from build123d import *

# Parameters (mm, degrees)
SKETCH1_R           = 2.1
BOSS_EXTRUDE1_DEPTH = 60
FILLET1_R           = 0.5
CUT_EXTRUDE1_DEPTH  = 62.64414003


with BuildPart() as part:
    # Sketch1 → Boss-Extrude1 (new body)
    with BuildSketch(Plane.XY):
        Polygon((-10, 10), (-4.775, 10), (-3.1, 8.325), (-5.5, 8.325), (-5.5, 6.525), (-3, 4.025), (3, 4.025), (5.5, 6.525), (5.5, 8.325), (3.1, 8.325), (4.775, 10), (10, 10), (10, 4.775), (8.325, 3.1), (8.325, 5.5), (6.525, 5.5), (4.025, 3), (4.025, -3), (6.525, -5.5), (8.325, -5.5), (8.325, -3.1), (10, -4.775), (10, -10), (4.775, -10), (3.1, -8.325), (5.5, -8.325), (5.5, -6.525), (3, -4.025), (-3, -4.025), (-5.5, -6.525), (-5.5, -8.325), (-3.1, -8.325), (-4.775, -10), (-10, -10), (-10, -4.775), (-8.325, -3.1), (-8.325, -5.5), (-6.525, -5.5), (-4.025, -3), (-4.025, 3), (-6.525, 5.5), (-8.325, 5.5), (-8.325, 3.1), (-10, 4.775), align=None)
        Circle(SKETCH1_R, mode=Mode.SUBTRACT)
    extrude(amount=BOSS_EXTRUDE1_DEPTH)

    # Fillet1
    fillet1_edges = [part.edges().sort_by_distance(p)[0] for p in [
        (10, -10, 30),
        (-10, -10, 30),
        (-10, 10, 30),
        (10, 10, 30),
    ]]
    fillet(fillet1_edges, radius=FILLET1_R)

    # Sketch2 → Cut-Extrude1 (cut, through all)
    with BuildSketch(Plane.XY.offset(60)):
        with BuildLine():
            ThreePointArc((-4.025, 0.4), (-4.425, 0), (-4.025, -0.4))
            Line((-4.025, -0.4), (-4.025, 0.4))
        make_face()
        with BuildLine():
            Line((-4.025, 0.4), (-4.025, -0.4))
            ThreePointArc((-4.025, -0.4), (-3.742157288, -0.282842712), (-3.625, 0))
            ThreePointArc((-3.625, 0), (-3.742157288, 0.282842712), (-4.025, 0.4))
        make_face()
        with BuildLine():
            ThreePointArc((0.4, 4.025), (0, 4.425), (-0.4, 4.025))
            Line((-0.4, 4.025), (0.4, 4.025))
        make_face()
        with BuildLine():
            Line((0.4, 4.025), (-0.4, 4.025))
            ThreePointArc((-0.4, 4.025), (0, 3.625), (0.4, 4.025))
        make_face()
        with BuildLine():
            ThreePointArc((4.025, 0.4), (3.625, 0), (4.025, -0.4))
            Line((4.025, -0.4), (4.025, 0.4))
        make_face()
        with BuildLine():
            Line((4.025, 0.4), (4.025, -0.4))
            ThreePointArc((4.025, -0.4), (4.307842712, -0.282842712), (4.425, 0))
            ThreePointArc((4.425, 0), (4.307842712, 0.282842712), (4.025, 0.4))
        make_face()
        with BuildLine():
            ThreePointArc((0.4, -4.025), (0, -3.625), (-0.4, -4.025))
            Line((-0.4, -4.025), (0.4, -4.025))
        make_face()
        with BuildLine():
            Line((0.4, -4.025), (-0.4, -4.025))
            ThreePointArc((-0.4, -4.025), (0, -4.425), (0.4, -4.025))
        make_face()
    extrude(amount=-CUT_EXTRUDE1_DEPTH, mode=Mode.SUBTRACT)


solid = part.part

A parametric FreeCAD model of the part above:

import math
import FreeCAD as App
import Part
import Sketcher


def edges_at(feature, points):
    """Names of the edges that pass closest to the given points."""
    edges = feature.Shape.Edges
    near = lambda p: min(range(len(edges)), key=lambda i: edges[i].distToShape(Part.Vertex(*p))[0])
    return sorted({f"Edge{near(p) + 1}" for p in points})

doc = App.newDocument("Part")
body = doc.addObject("PartDesign::Body", "Body")

sketch1 = body.newObject("Sketcher::SketchObject", "Sketch")
sketch1.AttachmentSupport = (doc.getObject("XY_Plane"), [""])
sketch1.MapMode = "FlatFace"
sketch1.addGeometry(Part.LineSegment(App.Vector(-4.8, 10, 0), App.Vector(-10, 10, 0)), False)
sketch1.addGeometry(Part.LineSegment(App.Vector(-10, 10, 0), App.Vector(-10, 4.8, 0)), False)
sketch1.addGeometry(Part.LineSegment(App.Vector(-10, 4.8, 0), App.Vector(-8.3, 3.1, 0)), False)
sketch1.addGeometry(Part.LineSegment(App.Vector(-8.3, 3.1, 0), App.Vector(-8.3, 5.5, 0)), False)
sketch1.addGeometry(Part.LineSegment(App.Vector(-8.3, 5.5, 0), App.Vector(-6.5, 5.5, 0)), False)
sketch1.addGeometry(Part.LineSegment(App.Vector(-6.5, 5.5, 0), App.Vector(-4, 3, 0)), False)
sketch1.addGeometry(Part.LineSegment(App.Vector(-4, 3, 0), App.Vector(-4, -3, 0)), False)
sketch1.addGeometry(Part.LineSegment(App.Vector(-4, -3, 0), App.Vector(-6.5, -5.5, 0)), False)
sketch1.addGeometry(Part.LineSegment(App.Vector(-6.5, -5.5, 0), App.Vector(-8.3, -5.5, 0)), False)
sketch1.addGeometry(Part.LineSegment(App.Vector(-8.3, -5.5, 0), App.Vector(-8.3, -3.1, 0)), False)
sketch1.addGeometry(Part.LineSegment(App.Vector(-8.3, -3.1, 0), App.Vector(-10, -4.8, 0)), False)
sketch1.addGeometry(Part.LineSegment(App.Vector(-10, -4.8, 0), App.Vector(-10, -10, 0)), False)
sketch1.addGeometry(Part.LineSegment(App.Vector(-10, -10, 0), App.Vector(-4.8, -10, 0)), False)
sketch1.addGeometry(Part.LineSegment(App.Vector(-4.8, -10, 0), App.Vector(-3.1, -8.3, 0)), False)
sketch1.addGeometry(Part.LineSegment(App.Vector(-3.1, -8.3, 0), App.Vector(-5.5, -8.3, 0)), False)
sketch1.addGeometry(Part.LineSegment(App.Vector(-5.5, -8.3, 0), App.Vector(-5.5, -6.5, 0)), False)
sketch1.addGeometry(Part.LineSegment(App.Vector(-5.5, -6.5, 0), App.Vector(-3, -4, 0)), False)
sketch1.addGeometry(Part.LineSegment(App.Vector(-3, -4, 0), App.Vector(3, -4, 0)), False)
sketch1.addGeometry(Part.LineSegment(App.Vector(3, -4, 0), App.Vector(5.5, -6.5, 0)), False)
sketch1.addGeometry(Part.LineSegment(App.Vector(5.5, -6.5, 0), App.Vector(5.5, -8.3, 0)), False)
sketch1.addGeometry(Part.LineSegment(App.Vector(5.5, -8.3, 0), App.Vector(3.1, -8.3, 0)), False)
sketch1.addGeometry(Part.LineSegment(App.Vector(3.1, -8.3, 0), App.Vector(4.8, -10, 0)), False)
sketch1.addGeometry(Part.LineSegment(App.Vector(4.8, -10, 0), App.Vector(10, -10, 0)), False)
sketch1.addGeometry(Part.LineSegment(App.Vector(10, -10, 0), App.Vector(10, -4.8, 0)), False)
sketch1.addGeometry(Part.LineSegment(App.Vector(10, -4.8, 0), App.Vector(8.3, -3.1, 0)), False)
sketch1.addGeometry(Part.LineSegment(App.Vector(8.3, -3.1, 0), App.Vector(8.3, -5.5, 0)), False)
sketch1.addGeometry(Part.LineSegment(App.Vector(8.3, -5.5, 0), App.Vector(6.5, -5.5, 0)), False)
sketch1.addGeometry(Part.LineSegment(App.Vector(6.5, -5.5, 0), App.Vector(4, -3, 0)), False)
sketch1.addGeometry(Part.LineSegment(App.Vector(4, -3, 0), App.Vector(4, 3, 0)), False)
sketch1.addGeometry(Part.LineSegment(App.Vector(4, 3, 0), App.Vector(6.5, 5.5, 0)), False)
sketch1.addGeometry(Part.LineSegment(App.Vector(6.5, 5.5, 0), App.Vector(8.3, 5.5, 0)), False)
sketch1.addGeometry(Part.LineSegment(App.Vector(8.3, 5.5, 0), App.Vector(8.3, 3.1, 0)), False)
sketch1.addGeometry(Part.LineSegment(App.Vector(8.3, 3.1, 0), App.Vector(10, 4.8, 0)), False)
sketch1.addGeometry(Part.LineSegment(App.Vector(10, 4.8, 0), App.Vector(10, 10, 0)), False)
sketch1.addGeometry(Part.LineSegment(App.Vector(10, 10, 0), App.Vector(4.8, 10, 0)), False)
sketch1.addGeometry(Part.LineSegment(App.Vector(4.8, 10, 0), App.Vector(3.1, 8.3, 0)), False)
sketch1.addGeometry(Part.LineSegment(App.Vector(3.1, 8.3, 0), App.Vector(5.5, 8.3, 0)), False)
sketch1.addGeometry(Part.LineSegment(App.Vector(5.5, 8.3, 0), App.Vector(5.5, 6.5, 0)), False)
sketch1.addGeometry(Part.LineSegment(App.Vector(5.5, 6.5, 0), App.Vector(3, 4, 0)), False)
sketch1.addGeometry(Part.LineSegment(App.Vector(3, 4, 0), App.Vector(-3, 4, 0)), False)
sketch1.addGeometry(Part.LineSegment(App.Vector(-3, 4, 0), App.Vector(-5.5, 6.5, 0)), False)
sketch1.addGeometry(Part.LineSegment(App.Vector(-5.5, 6.5, 0), App.Vector(-5.5, 8.3, 0)), False)
sketch1.addGeometry(Part.LineSegment(App.Vector(-5.5, 8.3, 0), App.Vector(-3.1, 8.3, 0)), False)
sketch1.addGeometry(Part.LineSegment(App.Vector(-3.1, 8.3, 0), App.Vector(-4.8, 10, 0)), False)
sketch1.addGeometry(Part.Circle(App.Vector(0, 0, 0), App.Vector(0, 0, 1), 2.1), False)
sketch1.addConstraint(Sketcher.Constraint("Coincident", 0, 2, 1, 1))
sketch1.addConstraint(Sketcher.Constraint("Coincident", 1, 2, 2, 1))
sketch1.addConstraint(Sketcher.Constraint("Coincident", 2, 2, 3, 1))
sketch1.addConstraint(Sketcher.Constraint("Coincident", 3, 2, 4, 1))
sketch1.addConstraint(Sketcher.Constraint("Coincident", 4, 2, 5, 1))
sketch1.addConstraint(Sketcher.Constraint("Coincident", 5, 2, 6, 1))
sketch1.addConstraint(Sketcher.Constraint("Coincident", 6, 2, 7, 1))
sketch1.addConstraint(Sketcher.Constraint("Coincident", 7, 2, 8, 1))
sketch1.addConstraint(Sketcher.Constraint("Coincident", 8, 2, 9, 1))
sketch1.addConstraint(Sketcher.Constraint("Coincident", 9, 2, 10, 1))
sketch1.addConstraint(Sketcher.Constraint("Coincident", 10, 2, 11, 1))
sketch1.addConstraint(Sketcher.Constraint("Coincident", 11, 2, 12, 1))
sketch1.addConstraint(Sketcher.Constraint("Coincident", 12, 2, 13, 1))
sketch1.addConstraint(Sketcher.Constraint("Coincident", 13, 2, 14, 1))
sketch1.addConstraint(Sketcher.Constraint("Coincident", 14, 2, 15, 1))
sketch1.addConstraint(Sketcher.Constraint("Coincident", 15, 2, 16, 1))
sketch1.addConstraint(Sketcher.Constraint("Coincident", 16, 2, 17, 1))
sketch1.addConstraint(Sketcher.Constraint("Coincident", 17, 2, 18, 1))
sketch1.addConstraint(Sketcher.Constraint("Coincident", 18, 2, 19, 1))
sketch1.addConstraint(Sketcher.Constraint("Coincident", 19, 2, 20, 1))
sketch1.addConstraint(Sketcher.Constraint("Coincident", 20, 2, 21, 1))
sketch1.addConstraint(Sketcher.Constraint("Coincident", 21, 2, 22, 1))
sketch1.addConstraint(Sketcher.Constraint("Coincident", 22, 2, 23, 1))
sketch1.addConstraint(Sketcher.Constraint("Coincident", 23, 2, 24, 1))
sketch1.addConstraint(Sketcher.Constraint("Coincident", 24, 2, 25, 1))
sketch1.addConstraint(Sketcher.Constraint("Coincident", 25, 2, 26, 1))
sketch1.addConstraint(Sketcher.Constraint("Coincident", 26, 2, 27, 1))
sketch1.addConstraint(Sketcher.Constraint("Coincident", 27, 2, 28, 1))
sketch1.addConstraint(Sketcher.Constraint("Coincident", 28, 2, 29, 1))
sketch1.addConstraint(Sketcher.Constraint("Coincident", 29, 2, 30, 1))
sketch1.addConstraint(Sketcher.Constraint("Coincident", 30, 2, 31, 1))
sketch1.addConstraint(Sketcher.Constraint("Coincident", 31, 2, 32, 1))
sketch1.addConstraint(Sketcher.Constraint("Coincident", 32, 2, 33, 1))
sketch1.addConstraint(Sketcher.Constraint("Coincident", 33, 2, 34, 1))
sketch1.addConstraint(Sketcher.Constraint("Coincident", 34, 2, 35, 1))
sketch1.addConstraint(Sketcher.Constraint("Coincident", 35, 2, 36, 1))
sketch1.addConstraint(Sketcher.Constraint("Coincident", 36, 2, 37, 1))
sketch1.addConstraint(Sketcher.Constraint("Coincident", 37, 2, 38, 1))
sketch1.addConstraint(Sketcher.Constraint("Coincident", 38, 2, 39, 1))
sketch1.addConstraint(Sketcher.Constraint("Coincident", 39, 2, 40, 1))
sketch1.addConstraint(Sketcher.Constraint("Coincident", 40, 2, 41, 1))
sketch1.addConstraint(Sketcher.Constraint("Coincident", 41, 2, 42, 1))
sketch1.addConstraint(Sketcher.Constraint("Coincident", 42, 2, 43, 1))
sketch1.addConstraint(Sketcher.Constraint("Coincident", 43, 2, 0, 1))
sketch1.addConstraint(Sketcher.Constraint("Horizontal", 0))
sketch1.addConstraint(Sketcher.Constraint("Vertical", 1))
sketch1.addConstraint(Sketcher.Constraint("Vertical", 3))
sketch1.addConstraint(Sketcher.Constraint("Horizontal", 4))
sketch1.addConstraint(Sketcher.Constraint("Vertical", 6))
sketch1.addConstraint(Sketcher.Constraint("Horizontal", 8))
sketch1.addConstraint(Sketcher.Constraint("Vertical", 9))
sketch1.addConstraint(Sketcher.Constraint("Vertical", 11))
sketch1.addConstraint(Sketcher.Constraint("Horizontal", 12))
sketch1.addConstraint(Sketcher.Constraint("Horizontal", 14))
sketch1.addConstraint(Sketcher.Constraint("Vertical", 15))
sketch1.addConstraint(Sketcher.Constraint("Horizontal", 17))
sketch1.addConstraint(Sketcher.Constraint("Vertical", 19))
sketch1.addConstraint(Sketcher.Constraint("Horizontal", 20))
sketch1.addConstraint(Sketcher.Constraint("Horizontal", 22))
sketch1.addConstraint(Sketcher.Constraint("Vertical", 23))
sketch1.addConstraint(Sketcher.Constraint("Vertical", 25))
sketch1.addConstraint(Sketcher.Constraint("Horizontal", 26))
sketch1.addConstraint(Sketcher.Constraint("Vertical", 28))
sketch1.addConstraint(Sketcher.Constraint("Horizontal", 30))
sketch1.addConstraint(Sketcher.Constraint("Vertical", 31))
sketch1.addConstraint(Sketcher.Constraint("Vertical", 33))
sketch1.addConstraint(Sketcher.Constraint("Horizontal", 34))
sketch1.addConstraint(Sketcher.Constraint("Horizontal", 36))
sketch1.addConstraint(Sketcher.Constraint("Vertical", 37))
sketch1.addConstraint(Sketcher.Constraint("Horizontal", 39))
sketch1.addConstraint(Sketcher.Constraint("Vertical", 41))
sketch1.addConstraint(Sketcher.Constraint("Horizontal", 42))
sketch1.addConstraint(Sketcher.Constraint("Coincident", 44, 3, -1, 1))
sketch1.addConstraint(Sketcher.Constraint("Symmetric", 0, 2, 22, 2, -1, 1))
sketch1.addConstraint(Sketcher.Constraint("Symmetric", 2, 2, 24, 2, -1, 1))
sketch1.addConstraint(Sketcher.Constraint("Symmetric", 4, 2, 26, 2, -1, 1))
sketch1.addConstraint(Sketcher.Constraint("Symmetric", 5, 2, 27, 2, -1, 1))
sketch1.addConstraint(Sketcher.Constraint("Symmetric", 7, 2, 29, 2, -1, 1))
sketch1.addConstraint(Sketcher.Constraint("Symmetric", 9, 2, 31, 2, -1, 1))
sketch1.addConstraint(Sketcher.Constraint("Symmetric", 10, 2, 32, 2, -1, 1))
sketch1.addConstraint(Sketcher.Constraint("Symmetric", 12, 2, 34, 2, -1, 1))
sketch1.addConstraint(Sketcher.Constraint("Symmetric", 13, 2, 35, 2, -1, 1))
sketch1.addConstraint(Sketcher.Constraint("Symmetric", 15, 2, 37, 2, -1, 1))
sketch1.addConstraint(Sketcher.Constraint("Symmetric", 16, 2, 38, 2, -1, 1))
sketch1.addConstraint(Sketcher.Constraint("Symmetric", 18, 2, 40, 2, -1, 1))
sketch1.addConstraint(Sketcher.Constraint("Symmetric", 20, 2, 42, 2, -1, 1))
sketch1.addConstraint(Sketcher.Constraint("Symmetric", 15, 2, 18, 2, -2))
sketch1.addConstraint(Sketcher.Constraint("Symmetric", 13, 2, 20, 2, -2))
sketch1.addConstraint(Sketcher.Constraint("Symmetric", 12, 2, 21, 2, -2))
sketch1.addConstraint(Sketcher.Constraint("Symmetric", 10, 2, 23, 2, -2))
sketch1.addConstraint(Sketcher.Constraint("Symmetric", 9, 2, 24, 2, -2))
sketch1.addConstraint(Sketcher.Constraint("Symmetric", 7, 2, 26, 2, -2))
sketch1.addConstraint(Sketcher.Constraint("Parallel", 2, 5))
sketch1.addConstraint(Sketcher.Constraint("Perpendicular", 5, 7))
sketch1.addConstraint(Sketcher.Constraint("Parallel", 7, 10))
sketch1.addConstraint(Sketcher.Constraint("Parallel", 10, 13))
sketch1.addConstraint(Sketcher.Constraint("Parallel", 13, 16))
sketch1.addConstraint(Sketcher.Constraint("Perpendicular", 16, 18))
sketch1.addConstraint(Sketcher.Constraint("Parallel", 18, 21))
sketch1.addConstraint(Sketcher.Constraint("Perpendicular", 27, 29))
sketch1.addConstraint(Sketcher.Constraint("Perpendicular", 38, 40))
sketch1.addConstraint(Sketcher.Constraint("Parallel", 40, 43))
sketch1.addConstraint(Sketcher.Constraint("Equal", 34, 1))
sketch1.addConstraint(Sketcher.Constraint("Equal", 42, 3))
sketch1.addConstraint(Sketcher.Constraint("Equal", 39, 6))
sketch1.addConstraint(Sketcher.Constraint("Equal", 30, 15))
sketch1.addConstraint(Sketcher.Constraint("Equal", 10, 13))
sketch1.addConstraint(Sketcher.Constraint("Equal", 7, 16))
sketch1.addConstraint(Sketcher.Constraint("Diameter", 44, 4.2))
sketch1.addConstraint(Sketcher.Constraint("DistanceX", 17, 1, 17, 2, 6.0))
sketch1.addConstraint(Sketcher.Constraint("DistanceX", 4, 1, 4, 2, 1.8))
sketch1.addConstraint(Sketcher.Constraint("DistanceX", 14, 2, 14, 1, 2.4))
sketch1.addConstraint(Sketcher.Constraint("DistanceX", 0, 2, -1, 1, 10.0))
sketch1.addConstraint(Sketcher.Constraint("DistanceY", -1, 1, 2, 2, 3.1))
sketch1.addConstraint(Sketcher.Constraint("DistanceX", 0, 2, 0, 1, 5.225))
pad1 = body.newObject("PartDesign::Pad", "Pad")
pad1.Profile = sketch1
pad1.Length = 60
doc.recompute()

fillet = body.newObject("PartDesign::Fillet", "Fillet")
fillet.Base = (pad1, edges_at(pad1, [
    (10, -10, 30),
    (-10, -10, 30),
    (-10, 10, 30),
    (10, 10, 30),
]))
fillet.Radius = 0.5

sketch2 = body.newObject("Sketcher::SketchObject", "Sketch001")
sketch2.AttachmentSupport = (doc.getObject("XY_Plane"), [""])
sketch2.MapMode = "FlatFace"
sketch2.AttachmentOffset = App.Placement(App.Vector(0, 0, 60), App.Rotation())
sketch2.addGeometry(Part.ArcOfCircle(Part.Circle(App.Vector(-4.03, 0, 0), App.Vector(0, 0, 1), 0.4), math.radians(90), math.radians(270)), False)
sketch2.addGeometry(Part.ArcOfCircle(Part.Circle(App.Vector(-4.03, 0, 0), App.Vector(0, 0, 1), 0.4), math.radians(-90), math.radians(0)), False)
sketch2.addGeometry(Part.ArcOfCircle(Part.Circle(App.Vector(-4.03, 0, 0), App.Vector(0, 0, 1), 0.4), math.radians(0), math.radians(90)), False)
sketch2.addGeometry(Part.Circle(App.Vector(0, 4.03, 0), App.Vector(0, 0, 1), 0.4), False)
sketch2.addGeometry(Part.ArcOfCircle(Part.Circle(App.Vector(4.03, 0, 0), App.Vector(0, 0, 1), 0.4), math.radians(90), math.radians(270)), False)
sketch2.addGeometry(Part.ArcOfCircle(Part.Circle(App.Vector(4.02, 0, 0), App.Vector(0, 0, 1), 0.4), math.radians(-90), math.radians(0)), False)
sketch2.addGeometry(Part.ArcOfCircle(Part.Circle(App.Vector(4.02, 0, 0), App.Vector(0, 0, 1), 0.4), math.radians(0), math.radians(90)), False)
sketch2.addGeometry(Part.Circle(App.Vector(0, -4.03, 0), App.Vector(0, 0, 1), 0.4), False)
sketch2.addConstraint(Sketcher.Constraint("Tangent", 0, 2, 1, 1))
sketch2.addConstraint(Sketcher.Constraint("Tangent", 1, 2, 2, 1))
sketch2.addConstraint(Sketcher.Constraint("Tangent", 2, 2, 0, 1))
sketch2.addConstraint(Sketcher.Constraint("Tangent", 4, 2, 5, 1))
sketch2.addConstraint(Sketcher.Constraint("Tangent", 5, 2, 6, 1))
sketch2.addConstraint(Sketcher.Constraint("Tangent", 6, 2, 4, 1))
sketch2.addConstraint(Sketcher.Constraint("Equal", 2, 3))
sketch2.addConstraint(Sketcher.Constraint("Equal", 3, 4))
sketch2.addConstraint(Sketcher.Constraint("Equal", 6, 7))
sketch2.addConstraint(Sketcher.Constraint("Symmetric", 0, 3, 4, 3, -1, 1))
sketch2.addConstraint(Sketcher.Constraint("Symmetric", 3, 3, 7, 3, -1, 1))
sketch2.addConstraint(Sketcher.Constraint("Symmetric", 0, 2, 4, 2, -2))
sketch2.addConstraint(Sketcher.Constraint("PointOnObject", 3, 3, -2))
sketch2.addConstraint(Sketcher.Constraint("PointOnObject", 1, 2, -1))
sketch2.addConstraint(Sketcher.Constraint("PointOnObject", 5, 2, -1))
sketch2.addConstraint(Sketcher.Constraint("Vertical", 2, 3, 0, 2))
sketch2.addConstraint(Sketcher.Constraint("Vertical", 0, 2, 2, 2))
sketch2.addConstraint(Sketcher.Constraint("Vertical", 4, 2, 6, 2))
sketch2.addConstraint(Sketcher.Constraint("Diameter", 3, 0.8))
sketch2.addConstraint(Sketcher.Constraint("DistanceX", 0, 3, 4, 3, 8.05))
sketch2.addConstraint(Sketcher.Constraint("DistanceY", -1, 1, 3, 3, 4.025))
pocket1 = body.newObject("PartDesign::Pocket", "Pocket")
pocket1.Profile = sketch2
pocket1.Type = "ThroughAll"

doc.recompute()
